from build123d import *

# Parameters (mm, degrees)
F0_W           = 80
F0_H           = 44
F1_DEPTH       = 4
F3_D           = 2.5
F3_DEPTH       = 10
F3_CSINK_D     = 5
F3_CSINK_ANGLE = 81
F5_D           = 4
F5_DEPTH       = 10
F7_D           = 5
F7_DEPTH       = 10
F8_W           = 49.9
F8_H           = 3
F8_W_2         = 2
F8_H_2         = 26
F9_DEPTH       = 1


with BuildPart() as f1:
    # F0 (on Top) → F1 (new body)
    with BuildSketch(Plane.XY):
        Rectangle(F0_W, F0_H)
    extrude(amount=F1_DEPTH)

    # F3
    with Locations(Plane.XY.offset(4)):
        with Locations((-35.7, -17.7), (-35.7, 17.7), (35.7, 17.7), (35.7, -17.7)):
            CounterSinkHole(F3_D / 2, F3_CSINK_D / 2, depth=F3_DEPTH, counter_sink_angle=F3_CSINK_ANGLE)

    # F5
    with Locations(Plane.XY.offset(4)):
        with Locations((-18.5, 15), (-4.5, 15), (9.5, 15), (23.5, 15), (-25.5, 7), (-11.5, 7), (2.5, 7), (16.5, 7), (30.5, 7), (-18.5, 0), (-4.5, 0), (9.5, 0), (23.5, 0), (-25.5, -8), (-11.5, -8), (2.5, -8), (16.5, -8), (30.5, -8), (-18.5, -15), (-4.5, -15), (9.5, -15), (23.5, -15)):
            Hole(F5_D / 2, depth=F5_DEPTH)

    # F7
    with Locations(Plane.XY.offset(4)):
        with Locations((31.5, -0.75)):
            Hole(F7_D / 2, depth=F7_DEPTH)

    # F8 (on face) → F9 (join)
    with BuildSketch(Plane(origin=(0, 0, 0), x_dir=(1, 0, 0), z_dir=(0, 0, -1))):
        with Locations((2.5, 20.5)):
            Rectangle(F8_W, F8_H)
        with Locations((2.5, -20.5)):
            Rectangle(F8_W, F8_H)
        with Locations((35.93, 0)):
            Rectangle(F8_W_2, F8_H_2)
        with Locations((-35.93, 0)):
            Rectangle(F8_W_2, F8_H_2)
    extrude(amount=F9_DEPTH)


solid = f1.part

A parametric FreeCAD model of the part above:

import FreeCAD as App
import Part
import Sketcher
from FreeCAD import Vector
Q = App.Units.Quantity


def add_polygon(sketch, points):
    """Adds a closed chain of lines whose ends are joined by coincident constraints."""
    first, n = sketch.GeometryCount, len(points)
    for a, b in zip(points, points[1:] + points[:1]):
        sketch.addGeometry(Part.LineSegment(App.Vector(*a, 0), App.Vector(*b, 0)), False)
    for i in range(n):
        sketch.addConstraint(Sketcher.Constraint("Coincident", first + i, 2, first + (i + 1) % n, 1))

doc = App.newDocument("Part")
body = doc.addObject("PartDesign::Body", "Body")

# Sketch on XY plane
sketch1 = doc.addObject("Sketcher::SketchObject", "Sketch")
body.addObject(sketch1)
sketch1.AttachmentSupport = (doc.XY_Plane, [""])
sketch1.MapMode = "FlatFace"
add_polygon(sketch1, [(-40, 22), (-40, -22), (40, -22), (40, 22)])  # lines 0-3
sketch1.addConstraint([
    Sketcher.Constraint("Vertical", 0),
    Sketcher.Constraint("Horizontal", 1),
    Sketcher.Constraint("Vertical", 2),
    Sketcher.Constraint("Horizontal", 3),
    Sketcher.Constraint("Symmetric", 0, 2, 2, 2, -1, 1),
    Sketcher.Constraint("DistanceX", 1, 1, 1, 2, Q("80 mm")),
    Sketcher.Constraint("DistanceY", 0, 2, 0, 1, Q("44 mm")),
])
pad1 = doc.addObject("PartDesign::Pad", "Pad")
body.addObject(pad1)
pad1.Profile = sketch1
pad1.Length = 4

# Sketch on XY plane
sketch2 = doc.addObject("Sketcher::SketchObject", "Sketch001")
body.addObject(sketch2)
sketch2.AttachmentSupport = (doc.XY_Plane, [""])
sketch2.MapMode = "FlatFace"
sketch2.AttachmentOffset = App.Placement(Vector(0, 0, 4), App.Rotation())
sketch2.addGeometry([
    Part.Circle(Vector(-35.7, -17.7, 0), Vector(0, 0, 1), 1.2),
    Part.Circle(Vector(-35.7, 17.7, 0), Vector(0, 0, 1), 1.2),
    Part.Circle(Vector(35.7, 17.7, 0), Vector(0, 0, 1), 1.2),
    Part.Circle(Vector(35.7, -17.7, 0), Vector(0, 0, 1), 1.2),
], False)
sketch2.addConstraint([
    Sketcher.Constraint("Equal", 0, 1),
    Sketcher.Constraint("Equal", 1, 2),
    Sketcher.Constraint("Equal", 2, 3),
    Sketcher.Constraint("Symmetric", 0, 3, 2, 3, -1, 1),
    Sketcher.Constraint("Symmetric", 1, 3, 3, 3, -1, 1),
    Sketcher.Constraint("Symmetric", 1, 3, 2, 3, -2),
    Sketcher.Constraint("Diameter", 0, Q("2.5 mm")),
    Sketcher.Constraint("DistanceX", 0, 3, -1, 1, Q("35.7 mm")),
    Sketcher.Constraint("DistanceY", 0, 3, -1, 1, Q("17.7 mm")),
])
doc.recompute()
hole = doc.addObject("PartDesign::Hole", "Hole")
body.addObject(hole)
hole.Profile = sketch2
hole.ThreadType = "None"
hole.Diameter = 2.5
hole.DepthType = "Dimension"
hole.Depth = 10
hole.DrillPoint = "Flat"
hole.HoleCutType = "Countersink"
hole.HoleCutDiameter = 5
hole.HoleCutCountersinkAngle = 81

# Sketch on XY plane
sketch3 = doc.addObject("Sketcher::SketchObject", "Sketch002")
body.addObject(sketch3)
sketch3.AttachmentSupport = (doc.XY_Plane, [""])
sketch3.MapMode = "FlatFace"
sketch3.AttachmentOffset = App.Placement(Vector(0, 0, 4), App.Rotation())
sketch3.addGeometry([
    Part.Circle(Vector(-18.5, 15, 0), Vector(0, 0, 1), 2),  # 0
    Part.Circle(Vector(-4.5, 15, 0), Vector(0, 0, 1), 2),  # 1
    Part.Circle(Vector(9.5, 15, 0), Vector(0, 0, 1), 2),  # 2
    Part.Circle(Vector(23.5, 15, 0), Vector(0, 0, 1), 2),  # 3
    Part.Circle(Vector(-25.5, 7, 0), Vector(0, 0, 1), 2),  # 4
    Part.Circle(Vector(-11.5, 7, 0), Vector(0, 0, 1), 2),  # 5
    Part.Circle(Vector(2.5, 7, 0), Vector(0, 0, 1), 2),  # 6
    Part.Circle(Vector(16.5, 7, 0), Vector(0, 0, 1), 2),  # 7
    Part.Circle(Vector(30.5, 7, 0), Vector(0, 0, 1), 2),  # 8
    Part.Circle(Vector(-18.5, 0, 0), Vector(0, 0, 1), 2),  # 9
    Part.Circle(Vector(-4.5, 0, 0), Vector(0, 0, 1), 2),  # 10
    Part.Circle(Vector(9.5, 0, 0), Vector(0, 0, 1), 2),  # 11
    Part.Circle(Vector(23.5, 0, 0), Vector(0, 0, 1), 2),  # 12
    Part.Circle(Vector(-25.5, -8, 0), Vector(0, 0, 1), 2),  # 13
    Part.Circle(Vector(-11.5, -8, 0), Vector(0, 0, 1), 2),  # 14
    Part.Circle(Vector(2.5, -8, 0), Vector(0, 0, 1), 2),  # 15
    Part.Circle(Vector(16.5, -8, 0), Vector(0, 0, 1), 2),  # 16
    Part.Circle(Vector(30.5, -8, 0), Vector(0, 0, 1), 2),  # 17
    Part.Circle(Vector(-18.5, -15, 0), Vector(0, 0, 1), 2),  # 18
    Part.Circle(Vector(-4.5, -15, 0), Vector(0, 0, 1), 2),  # 19
    Part.Circle(Vector(9.5, -15, 0), Vector(0, 0, 1), 2),  # 20
    Part.Circle(Vector(23.5, -15, 0), Vector(0, 0, 1), 2),  # 21
], False)
sketch3.addConstraint([
    Sketcher.Constraint("Equal", 0, 1),
    Sketcher.Constraint("Equal", 1, 2),
    Sketcher.Constraint("Equal", 2, 3),
    Sketcher.Constraint("Equal", 3, 4),
    Sketcher.Constraint("Equal", 4, 5),
    Sketcher.Constraint("Equal", 5, 6),
    Sketcher.Constraint("Equal", 6, 7),
    Sketcher.Constraint("Equal", 7, 8),
    Sketcher.Constraint("Equal", 8, 9),
    Sketcher.Constraint("Equal", 9, 10),
    Sketcher.Constraint("Equal", 10, 11),
    Sketcher.Constraint("Equal", 11, 12),
    Sketcher.Constraint("Equal", 12, 13),
    Sketcher.Constraint("Equal", 13, 14),
    Sketcher.Constraint("Equal", 14, 15),
    Sketcher.Constraint("Equal", 15, 16),
    Sketcher.Constraint("Equal", 16, 17),
    Sketcher.Constraint("Equal", 17, 18),
    Sketcher.Constraint("Equal", 18, 19),
    Sketcher.Constraint("Equal", 19, 20),
    Sketcher.Constraint("Equal", 20, 21),
    Sketcher.Constraint("Symmetric", 0, 3, 18, 3, -1),
    Sketcher.Constraint("Symmetric", 1, 3, 19, 3, -1),
    Sketcher.Constraint("Symmetric", 2, 3, 20, 3, -1),
    Sketcher.Constraint("Symmetric", 3, 3, 21, 3, -1),
    Sketcher.Constraint("PointOnObject", 9, 3, -1),
    Sketcher.Constraint("PointOnObject", 10, 3, -1),
    Sketcher.Constraint("PointOnObject", 11, 3, -1),
    Sketcher.Constraint("PointOnObject", 12, 3, -1),
    Sketcher.Constraint("Horizontal", 0, 3, 1, 3),
    Sketcher.Constraint("Horizontal", 1, 3, 2, 3),
    Sketcher.Constraint("Horizontal", 2, 3, 3, 3),
    Sketcher.Constraint("Horizontal", 4, 3, 5, 3),
    Sketcher.Constraint("Horizontal", 5, 3, 6, 3),
    Sketcher.Constraint("Horizontal", 6, 3, 7, 3),
    Sketcher.Constraint("Horizontal", 7, 3, 8, 3),
    Sketcher.Constraint("Horizontal", 13, 3, 14, 3),
    Sketcher.Constraint("Horizontal", 14, 3, 15, 3),
    Sketcher.Constraint("Horizontal", 15, 3, 16, 3),
    Sketcher.Constraint("Horizontal", 16, 3, 17, 3),
    Sketcher.Constraint("Vertical", 0, 3, 9, 3),
    Sketcher.Constraint("Vertical", 1, 3, 10, 3),
    Sketcher.Constraint("Vertical", 2, 3, 11, 3),
    Sketcher.Constraint("Vertical", 3, 3, 12, 3),
    Sketcher.Constraint("Vertical", 4, 3, 13, 3),
    Sketcher.Constraint("Vertical", 5, 3, 14, 3),
    Sketcher.Constraint("Vertical", 6, 3, 15, 3),
    Sketcher.Constraint("Vertical", 7, 3, 16, 3),
    Sketcher.Constraint("Vertical", 8, 3, 17, 3),
    Sketcher.Constraint("Diameter", 0, Q("4 mm")),
    Sketcher.Constraint("DistanceY", -1, 1, 0, 3, Q("15 mm")),
    Sketcher.Constraint("DistanceY", -1, 1, 4, 3, Q("7 mm")),
    Sketcher.Constraint("DistanceY", 13, 3, -1, 1, Q("8 mm")),
    Sketcher.Constraint("DistanceX", 0, 3, 1, 3, Q("14 mm")),
    Sketcher.Constraint("DistanceX", 1, 3, 2, 3, Q("14 mm")),
    Sketcher.Constraint("DistanceX", 2, 3, 3, 3, Q("14 mm")),
    Sketcher.Constraint("DistanceX", 4, 3, 0, 3, Q("7 mm")),
    Sketcher.Constraint("DistanceX", 0, 3, 5, 3, Q("7 mm")),
    Sketcher.Constraint("DistanceX", 1, 3, 6, 3, Q("7 mm")),
    Sketcher.Constraint("DistanceX", 2, 3, 7, 3, Q("7 mm")),
    Sketcher.Constraint("DistanceX", 3, 3, 8, 3, Q("7 mm")),
    Sketcher.Constraint("DistanceX", 0, 3, -1, 1, Q("18.5 mm")),
])
doc.recompute()
hole2 = doc.addObject("PartDesign::Hole", "Hole001")
body.addObject(hole2)
hole2.Profile = sketch3
hole2.ThreadType = "None"
hole2.Diameter = 4
hole2.DepthType = "Dimension"
hole2.Depth = 10
hole2.DrillPoint = "Flat"

# Sketch on XY plane
sketch4 = doc.addObject("Sketcher::SketchObject", "Sketch003")
body.addObject(sketch4)
sketch4.AttachmentSupport = (doc.XY_Plane, [""])
sketch4.MapMode = "FlatFace"
sketch4.AttachmentOffset = App.Placement(Vector(0, 0, 4), App.Rotation())
sketch4.addGeometry(Part.Circle(Vector(31.5, -0.8, 0), Vector(0, 0, 1), 2.5), False)
sketch4.addConstraint([
    Sketcher.Constraint("Diameter", 0, Q("5 mm")),
    Sketcher.Constraint("DistanceX", -1, 1, 0, 3, Q("31.5 mm")),
    Sketcher.Constraint("DistanceY", 0, 3, -1, 1, Q("0.75 mm")),
])
doc.recompute()
hole3 = doc.addObject("PartDesign::Hole", "Hole002")
body.addObject(hole3)
hole3.Profile = sketch4
hole3.ThreadType = "None"
hole3.Diameter = 5
hole3.DepthType = "Dimension"
hole3.Depth = 10
hole3.DrillPoint = "Flat"

# Sketch on XY plane
sketch5 = doc.addObject("Sketcher::SketchObject", "Sketch004")
body.addObject(sketch5)
sketch5.AttachmentSupport = (doc.XY_Plane, [""])
sketch5.MapMode = "FlatFace"
add_polygon(sketch5, [(-22.4, -22), (-22.4, -19), (27.4, -19), (27.4, -22)])  # lines 0-3
add_polygon(sketch5, [(-22.4, 19), (-22.4, 22), (27.4, 22), (27.4, 19)])  # lines 4-7
add_polygon(sketch5, [(34.9, -13), (34.9, 13), (36.9, 13), (36.9, -13)])  # lines 8-11
add_polygon(sketch5, [(-36.9, -13), (-36.9, 13), (-34.9, 13), (-34.9, -13)])  # lines 12-15
sketch5.addConstraint([
    Sketcher.Constraint("Vertical", 0),
    Sketcher.Constraint("Horizontal", 1),
    Sketcher.Constraint("Vertical", 2),
    Sketcher.Constraint("Horizontal", 3),
    Sketcher.Constraint("Vertical", 4),
    Sketcher.Constraint("Horizontal", 5),
    Sketcher.Constraint("Vertical", 6),
    Sketcher.Constraint("Horizontal", 7),
    Sketcher.Constraint("Vertical", 8),
    Sketcher.Constraint("Horizontal", 9),
    Sketcher.Constraint("Vertical", 10),
    Sketcher.Constraint("Horizontal", 11),
    Sketcher.Constraint("Vertical", 12),
    Sketcher.Constraint("Horizontal", 13),
    Sketcher.Constraint("Vertical", 14),
    Sketcher.Constraint("Horizontal", 15),
    Sketcher.Constraint("Symmetric", 10, 2, 12, 2, -1, 1),
    Sketcher.Constraint("Symmetric", 8, 2, 14, 2, -1, 1),
    Sketcher.Constraint("Symmetric", 3, 2, 4, 2, -1),
    Sketcher.Constraint("Symmetric", 1, 2, 6, 2, -1),
    Sketcher.Constraint("Horizontal", 9, 2, 12, 2),
    Sketcher.Constraint("DistanceX", 9, 1, 9, 2, Q("2 mm")),
    Sketcher.Constraint("DistanceY", 0, 1, 0, 2, Q("3 mm")),
    Sketcher.Constraint("DistanceY", 8, 1, 8, 2, Q("26 mm")),
    Sketcher.Constraint("DistanceX", 1, 1, 1, 2, Q("49.9 mm")),
    Sketcher.Constraint("DistanceY", 0, 2, -1, 1, Q("19 mm")),
    Sketcher.Constraint("DistanceX", 0, 2, -1, 1, Q("22.45 mm")),
    Sketcher.Constraint("DistanceX", -1, 1, 8, 2, Q("34.93 mm")),
])
pad2 = doc.addObject("PartDesign::Pad", "Pad001")
body.addObject(pad2)
pad2.Profile = sketch5
pad2.Length = 1
pad2.Reversed = True

doc.recompute()
